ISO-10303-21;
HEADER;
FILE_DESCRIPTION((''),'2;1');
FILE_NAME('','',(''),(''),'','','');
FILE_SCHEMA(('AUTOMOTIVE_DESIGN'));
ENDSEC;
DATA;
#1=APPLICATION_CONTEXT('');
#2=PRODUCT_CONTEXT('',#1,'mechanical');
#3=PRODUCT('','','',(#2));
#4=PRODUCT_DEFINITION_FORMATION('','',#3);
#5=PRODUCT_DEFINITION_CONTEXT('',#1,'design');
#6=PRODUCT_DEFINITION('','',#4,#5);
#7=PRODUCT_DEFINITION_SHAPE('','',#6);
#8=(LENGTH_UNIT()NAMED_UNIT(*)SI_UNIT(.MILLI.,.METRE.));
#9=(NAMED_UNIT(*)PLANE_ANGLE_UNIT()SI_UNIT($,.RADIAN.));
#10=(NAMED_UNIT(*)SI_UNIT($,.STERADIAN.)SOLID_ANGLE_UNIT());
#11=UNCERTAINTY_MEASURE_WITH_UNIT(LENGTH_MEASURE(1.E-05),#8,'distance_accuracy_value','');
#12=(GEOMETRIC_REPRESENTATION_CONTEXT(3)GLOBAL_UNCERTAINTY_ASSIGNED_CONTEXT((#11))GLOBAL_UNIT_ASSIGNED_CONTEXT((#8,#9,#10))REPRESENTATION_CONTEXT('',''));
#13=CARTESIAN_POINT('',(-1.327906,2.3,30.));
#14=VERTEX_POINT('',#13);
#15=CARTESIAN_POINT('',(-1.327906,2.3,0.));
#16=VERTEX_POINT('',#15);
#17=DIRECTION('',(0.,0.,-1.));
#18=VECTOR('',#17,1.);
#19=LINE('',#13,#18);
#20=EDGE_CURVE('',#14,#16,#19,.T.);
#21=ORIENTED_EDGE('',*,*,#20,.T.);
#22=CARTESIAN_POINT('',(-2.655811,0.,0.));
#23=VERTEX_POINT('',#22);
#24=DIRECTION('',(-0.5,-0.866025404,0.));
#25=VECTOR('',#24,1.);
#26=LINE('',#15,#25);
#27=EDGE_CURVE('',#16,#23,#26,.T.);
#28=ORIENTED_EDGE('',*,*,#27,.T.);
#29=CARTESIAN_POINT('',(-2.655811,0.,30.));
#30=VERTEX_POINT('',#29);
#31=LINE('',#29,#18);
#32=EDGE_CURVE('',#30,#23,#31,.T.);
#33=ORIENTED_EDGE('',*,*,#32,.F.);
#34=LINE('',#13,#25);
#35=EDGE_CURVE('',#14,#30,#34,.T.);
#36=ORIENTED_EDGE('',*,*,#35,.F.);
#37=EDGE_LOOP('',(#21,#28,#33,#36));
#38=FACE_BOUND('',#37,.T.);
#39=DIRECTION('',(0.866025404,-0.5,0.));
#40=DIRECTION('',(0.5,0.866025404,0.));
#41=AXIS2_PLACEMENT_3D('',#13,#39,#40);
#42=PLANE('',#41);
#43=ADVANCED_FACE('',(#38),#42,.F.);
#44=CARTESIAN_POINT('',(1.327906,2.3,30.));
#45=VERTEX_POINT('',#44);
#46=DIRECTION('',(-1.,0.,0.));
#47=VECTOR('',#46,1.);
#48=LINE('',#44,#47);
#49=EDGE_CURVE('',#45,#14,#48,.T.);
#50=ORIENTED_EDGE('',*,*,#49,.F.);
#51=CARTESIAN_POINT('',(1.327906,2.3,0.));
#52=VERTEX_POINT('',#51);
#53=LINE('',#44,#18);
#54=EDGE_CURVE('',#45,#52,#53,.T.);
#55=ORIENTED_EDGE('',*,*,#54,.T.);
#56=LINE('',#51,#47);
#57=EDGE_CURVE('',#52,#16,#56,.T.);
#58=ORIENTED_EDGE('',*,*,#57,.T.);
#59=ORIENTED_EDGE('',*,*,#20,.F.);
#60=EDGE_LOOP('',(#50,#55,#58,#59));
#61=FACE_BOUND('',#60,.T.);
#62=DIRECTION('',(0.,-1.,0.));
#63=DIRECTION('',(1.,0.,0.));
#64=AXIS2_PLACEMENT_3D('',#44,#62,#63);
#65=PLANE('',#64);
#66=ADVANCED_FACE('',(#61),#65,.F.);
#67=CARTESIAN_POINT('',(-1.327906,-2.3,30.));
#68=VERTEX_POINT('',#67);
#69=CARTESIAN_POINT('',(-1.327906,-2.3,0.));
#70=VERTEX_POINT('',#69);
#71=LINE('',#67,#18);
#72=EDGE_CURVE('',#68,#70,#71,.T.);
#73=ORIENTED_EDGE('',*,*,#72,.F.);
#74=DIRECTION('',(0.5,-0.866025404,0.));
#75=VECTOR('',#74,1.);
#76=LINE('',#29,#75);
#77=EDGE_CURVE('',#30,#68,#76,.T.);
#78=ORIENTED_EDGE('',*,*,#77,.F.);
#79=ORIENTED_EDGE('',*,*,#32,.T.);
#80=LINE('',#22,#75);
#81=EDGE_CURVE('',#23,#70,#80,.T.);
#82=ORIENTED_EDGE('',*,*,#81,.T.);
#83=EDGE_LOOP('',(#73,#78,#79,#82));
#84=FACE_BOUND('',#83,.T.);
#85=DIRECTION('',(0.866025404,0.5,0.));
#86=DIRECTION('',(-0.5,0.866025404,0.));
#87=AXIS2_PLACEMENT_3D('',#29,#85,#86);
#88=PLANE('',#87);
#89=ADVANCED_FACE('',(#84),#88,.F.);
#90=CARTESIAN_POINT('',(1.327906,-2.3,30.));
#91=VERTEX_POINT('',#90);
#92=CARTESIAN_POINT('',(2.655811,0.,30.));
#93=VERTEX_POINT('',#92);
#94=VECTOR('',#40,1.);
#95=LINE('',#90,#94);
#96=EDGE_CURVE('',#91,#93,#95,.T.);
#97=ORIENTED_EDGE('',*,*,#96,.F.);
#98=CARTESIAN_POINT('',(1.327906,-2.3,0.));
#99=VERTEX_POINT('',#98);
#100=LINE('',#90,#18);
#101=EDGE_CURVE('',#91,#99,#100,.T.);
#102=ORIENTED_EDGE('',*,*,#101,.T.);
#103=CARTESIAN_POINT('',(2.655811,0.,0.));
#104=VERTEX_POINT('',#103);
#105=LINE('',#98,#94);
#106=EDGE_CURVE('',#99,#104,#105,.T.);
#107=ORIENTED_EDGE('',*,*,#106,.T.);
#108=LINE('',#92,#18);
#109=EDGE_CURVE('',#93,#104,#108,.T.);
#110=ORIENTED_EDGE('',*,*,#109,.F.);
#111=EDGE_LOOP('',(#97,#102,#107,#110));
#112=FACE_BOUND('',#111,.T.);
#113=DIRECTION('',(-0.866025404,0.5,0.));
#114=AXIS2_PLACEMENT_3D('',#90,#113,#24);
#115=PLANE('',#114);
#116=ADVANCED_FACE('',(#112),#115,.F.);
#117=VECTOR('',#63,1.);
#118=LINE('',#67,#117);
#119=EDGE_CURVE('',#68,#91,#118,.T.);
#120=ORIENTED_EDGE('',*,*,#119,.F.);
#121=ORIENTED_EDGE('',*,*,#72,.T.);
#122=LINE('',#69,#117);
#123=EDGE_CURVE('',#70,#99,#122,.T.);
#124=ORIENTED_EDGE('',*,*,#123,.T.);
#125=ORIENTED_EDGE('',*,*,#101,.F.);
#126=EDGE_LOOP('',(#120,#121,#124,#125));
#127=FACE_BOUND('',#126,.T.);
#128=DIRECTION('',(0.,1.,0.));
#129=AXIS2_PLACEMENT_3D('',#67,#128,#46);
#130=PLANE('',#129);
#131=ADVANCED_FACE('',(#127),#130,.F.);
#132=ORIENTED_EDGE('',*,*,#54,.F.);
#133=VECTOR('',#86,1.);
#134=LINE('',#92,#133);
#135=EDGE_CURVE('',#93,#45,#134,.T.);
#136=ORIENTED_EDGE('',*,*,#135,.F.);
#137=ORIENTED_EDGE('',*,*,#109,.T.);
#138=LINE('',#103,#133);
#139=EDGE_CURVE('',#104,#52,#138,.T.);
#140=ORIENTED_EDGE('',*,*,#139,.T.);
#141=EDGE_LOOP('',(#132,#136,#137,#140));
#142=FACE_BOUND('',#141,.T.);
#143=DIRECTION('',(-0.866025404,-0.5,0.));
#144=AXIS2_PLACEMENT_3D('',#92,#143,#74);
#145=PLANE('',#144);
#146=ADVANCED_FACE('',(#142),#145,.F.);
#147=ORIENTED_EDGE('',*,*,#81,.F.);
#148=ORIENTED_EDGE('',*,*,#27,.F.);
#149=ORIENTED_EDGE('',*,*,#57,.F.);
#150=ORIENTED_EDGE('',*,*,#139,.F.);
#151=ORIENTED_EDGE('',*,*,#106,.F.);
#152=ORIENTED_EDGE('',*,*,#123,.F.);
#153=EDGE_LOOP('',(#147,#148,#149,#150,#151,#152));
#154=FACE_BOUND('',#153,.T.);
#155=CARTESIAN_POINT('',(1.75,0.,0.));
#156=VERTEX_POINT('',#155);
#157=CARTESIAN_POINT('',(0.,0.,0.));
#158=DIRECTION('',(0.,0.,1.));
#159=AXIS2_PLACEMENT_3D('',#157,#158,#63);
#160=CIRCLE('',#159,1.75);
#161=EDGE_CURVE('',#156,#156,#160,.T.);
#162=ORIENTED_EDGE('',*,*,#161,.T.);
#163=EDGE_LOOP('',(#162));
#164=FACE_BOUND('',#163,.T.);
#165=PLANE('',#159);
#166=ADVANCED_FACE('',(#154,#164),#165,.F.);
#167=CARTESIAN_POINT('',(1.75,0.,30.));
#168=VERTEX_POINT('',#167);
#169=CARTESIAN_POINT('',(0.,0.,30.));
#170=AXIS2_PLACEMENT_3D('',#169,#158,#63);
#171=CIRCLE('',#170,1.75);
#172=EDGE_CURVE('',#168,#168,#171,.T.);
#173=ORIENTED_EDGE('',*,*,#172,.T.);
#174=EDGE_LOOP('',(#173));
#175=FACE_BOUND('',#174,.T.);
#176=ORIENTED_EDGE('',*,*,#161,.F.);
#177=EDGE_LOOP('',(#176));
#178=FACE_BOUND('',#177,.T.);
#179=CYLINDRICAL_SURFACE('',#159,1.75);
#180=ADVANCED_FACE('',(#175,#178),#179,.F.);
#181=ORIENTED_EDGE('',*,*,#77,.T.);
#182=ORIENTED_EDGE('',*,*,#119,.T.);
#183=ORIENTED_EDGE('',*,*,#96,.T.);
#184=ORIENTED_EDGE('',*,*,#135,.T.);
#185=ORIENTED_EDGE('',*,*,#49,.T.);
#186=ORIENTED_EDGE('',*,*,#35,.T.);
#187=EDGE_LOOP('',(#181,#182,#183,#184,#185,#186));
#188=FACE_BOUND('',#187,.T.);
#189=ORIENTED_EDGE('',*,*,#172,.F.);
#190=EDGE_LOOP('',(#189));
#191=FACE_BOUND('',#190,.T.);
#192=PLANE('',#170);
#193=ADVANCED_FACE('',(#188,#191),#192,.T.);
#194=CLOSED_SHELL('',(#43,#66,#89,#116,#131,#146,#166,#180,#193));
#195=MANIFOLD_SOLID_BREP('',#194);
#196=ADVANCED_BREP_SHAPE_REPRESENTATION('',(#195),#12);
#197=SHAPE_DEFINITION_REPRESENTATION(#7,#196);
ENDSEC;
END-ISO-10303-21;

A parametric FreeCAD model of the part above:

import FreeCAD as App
import Part
import Sketcher
Q = App.Units.Quantity

doc = App.newDocument("Part")
body = doc.addObject("PartDesign::Body", "Body")

# Sketch on XY plane
sketch1 = body.newObject("Sketcher::SketchObject", "Sketch")
sketch1.AttachmentSupport = (doc.getObject("XY_Plane"), [""])
sketch1.MapMode = "FlatFace"
sketch1.addGeometry([
    Part.LineSegment(App.Vector(2.7, 0, 0), App.Vector(1.3, 2.3, 0)),  # 0
    Part.LineSegment(App.Vector(1.3, 2.3, 0), App.Vector(-1.3, 2.3, 0)),  # 1
    Part.LineSegment(App.Vector(-1.3, 2.3, 0), App.Vector(-2.7, 0, 0)),  # 2
    Part.LineSegment(App.Vector(-2.7, 0, 0), App.Vector(-1.3, -2.3, 0)),  # 3
    Part.LineSegment(App.Vector(-1.3, -2.3, 0), App.Vector(1.3, -2.3, 0)),  # 4
    Part.LineSegment(App.Vector(1.3, -2.3, 0), App.Vector(2.7, 0, 0)),  # 5
], False)
sketch1.addConstraint([
    Sketcher.Constraint("Coincident", 0, 2, 1, 1),
    Sketcher.Constraint("Coincident", 1, 2, 2, 1),
    Sketcher.Constraint("Coincident", 2, 2, 3, 1),
    Sketcher.Constraint("Coincident", 3, 2, 4, 1),
    Sketcher.Constraint("Coincident", 4, 2, 5, 1),
    Sketcher.Constraint("Coincident", 5, 2, 0, 1),
    Sketcher.Constraint("Horizontal", 1),
    Sketcher.Constraint("Horizontal", 4),
    Sketcher.Constraint("Symmetric", 0, 2, 3, 2, -1, 1),
    Sketcher.Constraint("Symmetric", 2, 2, 5, 2, -1, 1),
    Sketcher.Constraint("PointOnObject", 2, 2, -1),
    Sketcher.Constraint("Parallel", 2, 5),
    Sketcher.Constraint("Vertical", 1, 2, 3, 2),
    Sketcher.Constraint("Angle", 0, Q("120 deg")),
    Sketcher.Constraint("DistanceY", -1, 1, 0, 2, 2.3),
    Sketcher.Constraint("DistanceX", 1, 2, 1, 1, 2.655811),
])
pad1 = body.newObject("PartDesign::Pad", "Pad")
pad1.Profile = sketch1
pad1.Length = 30

# Sketch on XY plane
sketch2 = body.newObject("Sketcher::SketchObject", "Sketch001")
sketch2.AttachmentSupport = (doc.getObject("XY_Plane"), [""])
sketch2.MapMode = "FlatFace"
sketch2.AttachmentOffset = App.Placement(App.Vector(0, 0, 30), App.Rotation())
sketch2.addGeometry(Part.Circle(App.Vector(0, 0, 0), App.Vector(0, 0, 1), 1.8), False)
sketch2.addConstraint([
    Sketcher.Constraint("Coincident", 0, 3, -1, 1),
    Sketcher.Constraint("Diameter", 0, 3.5),
])
pocket1 = body.newObject("PartDesign::Pocket", "Pocket")
pocket1.Profile = sketch2
pocket1.Type = "ThroughAll"

doc.recompute()
